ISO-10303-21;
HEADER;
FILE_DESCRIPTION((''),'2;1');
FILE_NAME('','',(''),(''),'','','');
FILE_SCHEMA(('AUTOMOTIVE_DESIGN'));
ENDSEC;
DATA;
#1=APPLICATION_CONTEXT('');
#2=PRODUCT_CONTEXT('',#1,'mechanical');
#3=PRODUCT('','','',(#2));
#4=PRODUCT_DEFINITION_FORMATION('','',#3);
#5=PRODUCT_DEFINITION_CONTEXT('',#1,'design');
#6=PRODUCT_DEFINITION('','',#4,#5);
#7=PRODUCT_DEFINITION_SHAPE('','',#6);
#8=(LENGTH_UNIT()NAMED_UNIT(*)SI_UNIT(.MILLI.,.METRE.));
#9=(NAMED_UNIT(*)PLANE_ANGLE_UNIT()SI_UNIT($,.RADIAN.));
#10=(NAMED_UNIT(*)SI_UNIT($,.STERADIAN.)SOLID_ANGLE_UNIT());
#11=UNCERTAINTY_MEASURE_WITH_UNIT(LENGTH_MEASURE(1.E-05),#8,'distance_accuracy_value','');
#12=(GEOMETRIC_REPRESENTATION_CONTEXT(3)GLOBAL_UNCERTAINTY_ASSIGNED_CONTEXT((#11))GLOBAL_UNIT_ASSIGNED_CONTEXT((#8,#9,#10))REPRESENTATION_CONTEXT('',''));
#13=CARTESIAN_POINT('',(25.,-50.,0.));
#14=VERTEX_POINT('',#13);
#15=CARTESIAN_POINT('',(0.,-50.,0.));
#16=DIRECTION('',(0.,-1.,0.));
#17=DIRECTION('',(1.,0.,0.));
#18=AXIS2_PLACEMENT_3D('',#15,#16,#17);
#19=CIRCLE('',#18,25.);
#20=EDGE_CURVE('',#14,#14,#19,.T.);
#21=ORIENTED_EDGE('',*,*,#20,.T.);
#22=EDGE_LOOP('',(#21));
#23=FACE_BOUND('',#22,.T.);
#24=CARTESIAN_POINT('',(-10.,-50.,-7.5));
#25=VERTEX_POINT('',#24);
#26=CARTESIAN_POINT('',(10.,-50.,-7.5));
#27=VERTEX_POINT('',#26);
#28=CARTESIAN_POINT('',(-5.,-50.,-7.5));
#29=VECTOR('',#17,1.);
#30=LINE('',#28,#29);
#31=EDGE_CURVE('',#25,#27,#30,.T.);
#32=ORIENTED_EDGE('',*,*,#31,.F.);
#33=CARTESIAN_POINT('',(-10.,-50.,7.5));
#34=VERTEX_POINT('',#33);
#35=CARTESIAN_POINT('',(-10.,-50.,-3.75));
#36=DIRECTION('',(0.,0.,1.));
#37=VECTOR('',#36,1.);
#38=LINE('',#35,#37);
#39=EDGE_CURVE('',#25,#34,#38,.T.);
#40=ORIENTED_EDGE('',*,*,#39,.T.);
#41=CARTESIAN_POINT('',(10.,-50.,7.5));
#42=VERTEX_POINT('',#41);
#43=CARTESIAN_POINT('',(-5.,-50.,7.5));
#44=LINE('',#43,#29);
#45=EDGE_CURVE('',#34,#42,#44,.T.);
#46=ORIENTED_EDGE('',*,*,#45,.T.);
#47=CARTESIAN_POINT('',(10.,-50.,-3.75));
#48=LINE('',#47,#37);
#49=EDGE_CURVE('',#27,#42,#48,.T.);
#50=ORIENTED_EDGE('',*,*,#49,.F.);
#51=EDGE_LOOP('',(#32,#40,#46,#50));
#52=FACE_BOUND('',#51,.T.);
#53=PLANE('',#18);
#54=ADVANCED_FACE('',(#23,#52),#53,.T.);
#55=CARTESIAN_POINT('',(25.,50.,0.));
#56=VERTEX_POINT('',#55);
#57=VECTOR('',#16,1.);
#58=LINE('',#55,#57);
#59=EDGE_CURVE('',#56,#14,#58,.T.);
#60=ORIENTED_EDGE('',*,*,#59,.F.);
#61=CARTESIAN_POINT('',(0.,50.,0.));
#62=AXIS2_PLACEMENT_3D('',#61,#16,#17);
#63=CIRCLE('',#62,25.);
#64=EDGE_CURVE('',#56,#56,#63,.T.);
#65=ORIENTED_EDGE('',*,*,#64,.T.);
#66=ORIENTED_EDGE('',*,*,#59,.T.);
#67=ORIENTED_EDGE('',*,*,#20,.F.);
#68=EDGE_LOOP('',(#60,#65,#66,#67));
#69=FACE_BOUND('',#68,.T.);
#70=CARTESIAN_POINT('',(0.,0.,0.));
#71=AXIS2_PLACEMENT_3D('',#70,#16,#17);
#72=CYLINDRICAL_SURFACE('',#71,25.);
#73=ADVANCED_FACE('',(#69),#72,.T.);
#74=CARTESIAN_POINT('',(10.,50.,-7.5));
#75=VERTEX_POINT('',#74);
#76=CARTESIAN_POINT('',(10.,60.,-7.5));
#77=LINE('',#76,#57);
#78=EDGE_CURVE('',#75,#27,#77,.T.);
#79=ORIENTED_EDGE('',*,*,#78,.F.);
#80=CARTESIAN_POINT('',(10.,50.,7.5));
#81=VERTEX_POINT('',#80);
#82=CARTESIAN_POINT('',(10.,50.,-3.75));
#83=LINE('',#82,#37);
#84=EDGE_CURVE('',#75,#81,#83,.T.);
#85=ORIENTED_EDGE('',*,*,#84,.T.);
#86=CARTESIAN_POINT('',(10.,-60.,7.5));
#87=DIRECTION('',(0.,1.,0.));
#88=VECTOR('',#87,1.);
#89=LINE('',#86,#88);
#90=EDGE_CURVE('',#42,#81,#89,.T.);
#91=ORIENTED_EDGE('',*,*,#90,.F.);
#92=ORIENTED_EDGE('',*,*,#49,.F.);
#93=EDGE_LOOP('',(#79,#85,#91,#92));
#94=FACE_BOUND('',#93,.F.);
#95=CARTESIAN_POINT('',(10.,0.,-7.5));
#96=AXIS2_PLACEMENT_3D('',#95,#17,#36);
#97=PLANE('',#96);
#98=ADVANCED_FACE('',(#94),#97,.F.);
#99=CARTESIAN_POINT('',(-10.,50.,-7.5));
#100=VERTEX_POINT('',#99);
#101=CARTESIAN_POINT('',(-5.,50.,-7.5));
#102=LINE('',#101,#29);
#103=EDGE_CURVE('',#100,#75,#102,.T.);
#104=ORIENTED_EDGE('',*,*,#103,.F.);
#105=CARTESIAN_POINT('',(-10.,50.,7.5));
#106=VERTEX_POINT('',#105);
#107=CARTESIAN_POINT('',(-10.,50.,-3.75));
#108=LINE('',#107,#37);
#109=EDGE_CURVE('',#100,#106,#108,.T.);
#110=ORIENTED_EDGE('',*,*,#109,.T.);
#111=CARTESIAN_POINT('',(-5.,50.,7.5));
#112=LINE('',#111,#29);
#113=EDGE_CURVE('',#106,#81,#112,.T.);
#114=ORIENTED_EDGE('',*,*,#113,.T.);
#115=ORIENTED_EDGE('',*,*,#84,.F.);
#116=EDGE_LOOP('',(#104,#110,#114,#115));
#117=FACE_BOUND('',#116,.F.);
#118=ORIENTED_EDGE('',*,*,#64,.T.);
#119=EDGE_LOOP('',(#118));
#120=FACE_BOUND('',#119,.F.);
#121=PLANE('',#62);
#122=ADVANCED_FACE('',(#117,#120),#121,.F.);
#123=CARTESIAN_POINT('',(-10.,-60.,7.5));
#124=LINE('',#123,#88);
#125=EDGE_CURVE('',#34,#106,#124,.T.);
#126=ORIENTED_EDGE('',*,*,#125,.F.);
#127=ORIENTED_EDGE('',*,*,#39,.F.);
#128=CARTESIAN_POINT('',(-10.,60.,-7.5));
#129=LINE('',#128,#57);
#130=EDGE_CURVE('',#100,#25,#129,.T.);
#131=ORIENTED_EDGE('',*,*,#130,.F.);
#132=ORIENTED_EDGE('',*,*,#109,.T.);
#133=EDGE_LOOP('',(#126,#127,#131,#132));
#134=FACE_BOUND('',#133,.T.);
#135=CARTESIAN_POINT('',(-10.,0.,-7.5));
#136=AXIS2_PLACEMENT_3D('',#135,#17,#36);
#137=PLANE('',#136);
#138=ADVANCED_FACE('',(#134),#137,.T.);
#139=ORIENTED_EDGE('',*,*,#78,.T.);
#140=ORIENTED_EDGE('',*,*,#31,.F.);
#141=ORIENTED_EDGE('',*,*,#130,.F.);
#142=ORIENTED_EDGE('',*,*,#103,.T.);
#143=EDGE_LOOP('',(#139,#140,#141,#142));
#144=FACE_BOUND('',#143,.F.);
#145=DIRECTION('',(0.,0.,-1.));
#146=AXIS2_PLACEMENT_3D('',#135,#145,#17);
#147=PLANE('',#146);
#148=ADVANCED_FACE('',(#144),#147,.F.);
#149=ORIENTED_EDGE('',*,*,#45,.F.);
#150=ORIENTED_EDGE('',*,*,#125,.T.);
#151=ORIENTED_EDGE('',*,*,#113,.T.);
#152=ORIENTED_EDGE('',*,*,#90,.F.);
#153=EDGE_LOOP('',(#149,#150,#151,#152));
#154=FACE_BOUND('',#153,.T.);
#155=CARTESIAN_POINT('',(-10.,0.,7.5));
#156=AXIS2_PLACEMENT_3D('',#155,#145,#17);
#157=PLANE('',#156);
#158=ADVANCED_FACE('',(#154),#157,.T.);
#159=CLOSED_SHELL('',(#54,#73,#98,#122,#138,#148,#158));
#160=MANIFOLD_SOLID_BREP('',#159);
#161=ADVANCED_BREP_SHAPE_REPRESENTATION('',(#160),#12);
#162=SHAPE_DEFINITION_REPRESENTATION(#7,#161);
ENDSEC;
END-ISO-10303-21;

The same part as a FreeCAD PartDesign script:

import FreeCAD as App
import Part
import Sketcher


def add_polygon(sketch, points):
    """Adds a closed chain of lines whose ends are joined by coincident constraints."""
    first, n = sketch.GeometryCount, len(points)
    for a, b in zip(points, points[1:] + points[:1]):
        sketch.addGeometry(Part.LineSegment(App.Vector(*a, 0), App.Vector(*b, 0)), False)
    for i in range(n):
        sketch.addConstraint(Sketcher.Constraint("Coincident", first + i, 2, first + (i + 1) % n, 1))

doc = App.newDocument("Part")
body = doc.addObject("PartDesign::Body", "Body")

# Sketch on XZ plane
sketch1 = doc.addObject("Sketcher::SketchObject", "Sketch")
body.addObject(sketch1)
sketch1.AttachmentSupport = (doc.XZ_Plane, [""])
sketch1.MapMode = "FlatFace"
sketch1.addGeometry(Part.Circle(App.Vector(0, 0, 0), App.Vector(0, 0, 1), 25), False)
sketch1.addConstraint(Sketcher.Constraint("Coincident", 0, 3, -1, 1))
sketch1.addConstraint(Sketcher.Constraint("Diameter", 0, 50.0))
pad1 = doc.addObject("PartDesign::Pad", "Pad")
body.addObject(pad1)
pad1.Profile = sketch1
pad1.Length = 100
pad1.Midplane = True

# Sketch on XZ plane
sketch2 = doc.addObject("Sketcher::SketchObject", "Sketch001")
body.addObject(sketch2)
sketch2.AttachmentSupport = (doc.XZ_Plane, [""])
sketch2.MapMode = "FlatFace"
add_polygon(sketch2, [(-10, 8), (-10, -8), (10, -8), (10, 8)])  # lines 0-3
sketch2.addConstraint(Sketcher.Constraint("Vertical", 0))
sketch2.addConstraint(Sketcher.Constraint("Horizontal", 1))
sketch2.addConstraint(Sketcher.Constraint("Vertical", 2))
sketch2.addConstraint(Sketcher.Constraint("Horizontal", 3))
sketch2.addConstraint(Sketcher.Constraint("Symmetric", 0, 2, 2, 2, -1, 1))
sketch2.addConstraint(Sketcher.Constraint("DistanceX", 1, 1, 1, 2, 20.0))
sketch2.addConstraint(Sketcher.Constraint("DistanceY", 0, 2, 0, 1, 15.0))
pocket1 = doc.addObject("PartDesign::Pocket", "Pocket")
body.addObject(pocket1)
pocket1.Profile = sketch2
pocket1.Length = 120
pocket1.Midplane = True

doc.recompute()
